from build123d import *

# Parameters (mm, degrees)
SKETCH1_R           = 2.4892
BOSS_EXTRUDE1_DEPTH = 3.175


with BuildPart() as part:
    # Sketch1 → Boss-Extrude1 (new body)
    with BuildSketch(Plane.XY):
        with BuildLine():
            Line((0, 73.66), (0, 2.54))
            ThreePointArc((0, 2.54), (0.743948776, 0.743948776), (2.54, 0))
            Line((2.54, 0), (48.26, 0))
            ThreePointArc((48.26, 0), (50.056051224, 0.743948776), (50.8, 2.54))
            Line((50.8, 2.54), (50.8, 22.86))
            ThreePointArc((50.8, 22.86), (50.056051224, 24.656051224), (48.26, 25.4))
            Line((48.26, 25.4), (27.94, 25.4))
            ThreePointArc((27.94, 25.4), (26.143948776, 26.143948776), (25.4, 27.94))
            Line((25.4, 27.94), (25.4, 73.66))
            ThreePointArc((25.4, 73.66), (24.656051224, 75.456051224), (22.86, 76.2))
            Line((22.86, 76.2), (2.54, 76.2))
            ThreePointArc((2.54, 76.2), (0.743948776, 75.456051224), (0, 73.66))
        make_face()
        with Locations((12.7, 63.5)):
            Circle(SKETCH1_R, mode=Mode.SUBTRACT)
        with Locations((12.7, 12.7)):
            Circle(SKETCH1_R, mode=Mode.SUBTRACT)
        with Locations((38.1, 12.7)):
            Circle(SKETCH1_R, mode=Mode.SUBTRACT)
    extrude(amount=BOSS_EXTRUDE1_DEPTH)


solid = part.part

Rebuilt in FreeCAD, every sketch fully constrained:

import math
import FreeCAD as App
import Part
import Sketcher
from FreeCAD import Vector
Q = App.Units.Quantity

doc = App.newDocument("Part")
body = doc.addObject("PartDesign::Body", "Body")

# Sketch on XY plane
sketch1 = body.newObject("Sketcher::SketchObject", "Sketch")
sketch1.AttachmentSupport = (doc.getObject("XY_Plane"), [""])
sketch1.MapMode = "FlatFace"
sketch1.addGeometry(Part.LineSegment(Vector(0, 73.66, 0), Vector(0, 2.54, 0)), False)
sketch1.addGeometry(Part.ArcOfCircle(Part.Circle(Vector(2.54, 2.54, 0), Vector(0, 0, 1), 2.54), math.radians(-180), math.radians(-90)), False)
sketch1.addGeometry(Part.LineSegment(Vector(2.54, 0, 0), Vector(48.26, 0, 0)), False)
sketch1.addGeometry(Part.ArcOfCircle(Part.Circle(Vector(48.26, 2.54, 0), Vector(0, 0, 1), 2.54), math.radians(-90), math.radians(0)), False)
sketch1.addGeometry(Part.LineSegment(Vector(50.8, 2.54, 0), Vector(50.8, 22.86, 0)), False)
sketch1.addGeometry(Part.ArcOfCircle(Part.Circle(Vector(48.26, 22.86, 0), Vector(0, 0, 1), 2.54), math.radians(0), math.radians(90)), False)
sketch1.addGeometry(Part.LineSegment(Vector(48.26, 25.4, 0), Vector(27.94, 25.4, 0)), False)
sketch1.addGeometry(Part.ArcOfCircle(Part.Circle(Vector(27.94, 27.94, 0), Vector(0, 0, 1), 2.54), math.radians(-180), math.radians(-90)), False)
sketch1.addGeometry(Part.LineSegment(Vector(25.4, 27.94, 0), Vector(25.4, 73.66, 0)), False)
sketch1.addGeometry(Part.ArcOfCircle(Part.Circle(Vector(22.86, 73.66, 0), Vector(0, 0, 1), 2.54), math.radians(0), math.radians(90)), False)
sketch1.addGeometry(Part.LineSegment(Vector(22.86, 76.2, 0), Vector(2.54, 76.2, 0)), False)
sketch1.addGeometry(Part.ArcOfCircle(Part.Circle(Vector(2.54, 73.66, 0), Vector(0, 0, 1), 2.54), math.radians(90), math.radians(180)), False)
sketch1.addGeometry(Part.Circle(Vector(12.7, 12.7, 0), Vector(0, 0, 1), 2.4892), False)
sketch1.addGeometry(Part.Circle(Vector(38.1, 12.7, 0), Vector(0, 0, 1), 2.4892), False)
sketch1.addGeometry(Part.Circle(Vector(12.7, 63.5, 0), Vector(0, 0, 1), 2.4892), False)
sketch1.addConstraint(Sketcher.Constraint("Tangent", 0, 2, 1, 1))
sketch1.addConstraint(Sketcher.Constraint("Tangent", 1, 2, 2, 1))
sketch1.addConstraint(Sketcher.Constraint("Tangent", 2, 2, 3, 1))
sketch1.addConstraint(Sketcher.Constraint("Tangent", 3, 2, 4, 1))
sketch1.addConstraint(Sketcher.Constraint("Tangent", 4, 2, 5, 1))
sketch1.addConstraint(Sketcher.Constraint("Tangent", 5, 2, 6, 1))
sketch1.addConstraint(Sketcher.Constraint("Tangent", 6, 2, 7, 2))
sketch1.addConstraint(Sketcher.Constraint("Tangent", 7, 1, 8, 1))
sketch1.addConstraint(Sketcher.Constraint("Tangent", 8, 2, 9, 1))
sketch1.addConstraint(Sketcher.Constraint("Tangent", 9, 2, 10, 1))
sketch1.addConstraint(Sketcher.Constraint("Tangent", 10, 2, 11, 1))
sketch1.addConstraint(Sketcher.Constraint("Tangent", 11, 2, 0, 1))
sketch1.addConstraint(Sketcher.Constraint("Vertical", 0))
sketch1.addConstraint(Sketcher.Constraint("Horizontal", 2))
sketch1.addConstraint(Sketcher.Constraint("Vertical", 4))
sketch1.addConstraint(Sketcher.Constraint("Horizontal", 6))
sketch1.addConstraint(Sketcher.Constraint("Vertical", 8))
sketch1.addConstraint(Sketcher.Constraint("Horizontal", 10))
sketch1.addConstraint(Sketcher.Constraint("Equal", 1, 3))
sketch1.addConstraint(Sketcher.Constraint("Equal", 3, 5))
sketch1.addConstraint(Sketcher.Constraint("Equal", 5, 7))
sketch1.addConstraint(Sketcher.Constraint("Equal", 7, 9))
sketch1.addConstraint(Sketcher.Constraint("Equal", 9, 11))
sketch1.addConstraint(Sketcher.Constraint("Equal", 12, 13))
sketch1.addConstraint(Sketcher.Constraint("Equal", 13, 14))
sketch1.addConstraint(Sketcher.Constraint("PointOnObject", 0, 2, -2))
sketch1.addConstraint(Sketcher.Constraint("PointOnObject", 1, 2, -1))
sketch1.addConstraint(Sketcher.Constraint("Horizontal", 12, 3, 13, 3))
sketch1.addConstraint(Sketcher.Constraint("Vertical", 12, 3, 14, 3))
sketch1.addConstraint(Sketcher.Constraint("Equal", 6, 10))
sketch1.addConstraint(Sketcher.Constraint("Equal", 10, 4))
sketch1.addConstraint(Sketcher.Constraint("Equal", 2, 8))
sketch1.addConstraint(Sketcher.Constraint("Radius", 1, Q("0.1 in")))
sketch1.addConstraint(Sketcher.Constraint("Diameter", 12, Q("0.196 in")))
sketch1.addConstraint(Sketcher.Constraint("DistanceX", 2, 1, 2, 2, Q("1.8 in")))
sketch1.addConstraint(Sketcher.Constraint("DistanceX", 12, 3, 13, 3, Q("1 in")))
sketch1.addConstraint(Sketcher.Constraint("DistanceY", 12, 3, 14, 3, Q("2 in")))
sketch1.addConstraint(Sketcher.Constraint("DistanceX", -1, 1, 12, 3, Q("0.5 in")))
sketch1.addConstraint(Sketcher.Constraint("DistanceY", -1, 1, 12, 3, Q("0.5 in")))
pad1 = body.newObject("PartDesign::Pad", "Pad")
pad1.Profile = sketch1
pad1.Length = Q("0.125 in")

doc.recompute()
